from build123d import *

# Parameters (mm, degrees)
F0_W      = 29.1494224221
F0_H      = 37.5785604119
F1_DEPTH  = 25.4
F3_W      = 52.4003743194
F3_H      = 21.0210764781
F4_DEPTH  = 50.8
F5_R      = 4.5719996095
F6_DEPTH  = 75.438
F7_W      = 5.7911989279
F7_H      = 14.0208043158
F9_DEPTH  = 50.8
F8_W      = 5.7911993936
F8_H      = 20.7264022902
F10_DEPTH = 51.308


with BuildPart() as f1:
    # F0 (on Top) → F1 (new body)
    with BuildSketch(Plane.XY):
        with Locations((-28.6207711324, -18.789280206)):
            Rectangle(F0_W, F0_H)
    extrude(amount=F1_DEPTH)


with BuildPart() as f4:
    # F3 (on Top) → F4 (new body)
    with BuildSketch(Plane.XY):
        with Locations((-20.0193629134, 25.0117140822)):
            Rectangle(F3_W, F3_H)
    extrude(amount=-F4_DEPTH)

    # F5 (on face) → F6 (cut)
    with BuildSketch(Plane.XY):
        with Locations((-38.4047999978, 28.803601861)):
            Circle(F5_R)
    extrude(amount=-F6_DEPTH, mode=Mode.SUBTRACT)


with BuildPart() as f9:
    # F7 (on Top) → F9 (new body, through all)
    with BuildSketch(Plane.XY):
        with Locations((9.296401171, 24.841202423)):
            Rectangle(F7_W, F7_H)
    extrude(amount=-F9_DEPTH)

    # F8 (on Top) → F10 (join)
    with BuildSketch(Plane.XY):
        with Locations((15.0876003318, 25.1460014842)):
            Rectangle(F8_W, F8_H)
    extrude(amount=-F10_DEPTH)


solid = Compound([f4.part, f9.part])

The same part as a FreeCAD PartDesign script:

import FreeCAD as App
import Part
import Sketcher

V = App.Vector
Q = App.Units.Quantity


def add_polygon(sketch, points):
    """Adds a closed chain of lines whose ends are joined by coincident constraints."""
    first, n = sketch.GeometryCount, len(points)
    for a, b in zip(points, points[1:] + points[:1]):
        sketch.addGeometry(Part.LineSegment(App.Vector(*a, 0), App.Vector(*b, 0)), False)
    for i in range(n):
        sketch.addConstraint(Sketcher.Constraint("Coincident", first + i, 2, first + (i + 1) % n, 1))

doc = App.newDocument("Part")
params = doc.addObject("Spreadsheet::Sheet", "Params")
for row, (alias, value) in enumerate([
    ("pad1_length", "1 in"),
    ("pad2_length", "2 in"),
    ("sketch3_diameter", "0.36 in"),
    ("pocket1_length", "2.97 in"),
    ("sketch4_width", "0.228 in"),
    ("sketch4_height", "0.5520002 in"),
    ("pad3_length", "2 in"),
    ("sketch5_width", "0.228 in"),
    ("sketch5_height", "0.8160001 in"),
    ("pad4_length", "2.02 in"),
], start=1):
    params.set(f"A{row}", alias)
    params.set(f"B{row}", "=" + value)
    params.setAlias(f"B{row}", alias)

body = doc.addObject("PartDesign::Body", "Body")

# Sketch on XY plane
sketch1 = body.newObject("Sketcher::SketchObject", "Sketch")
sketch1.AttachmentSupport = (doc.getObject("XY_Plane"), [""])
sketch1.MapMode = "FlatFace"
add_polygon(sketch1, [(-43, 0), (-43, -38), (-14, -38), (-14, 0)])  # lines 0-3
sketch1.addConstraint(Sketcher.Constraint("Vertical", 0))
sketch1.addConstraint(Sketcher.Constraint("Horizontal", 1))
sketch1.addConstraint(Sketcher.Constraint("Vertical", 2))
sketch1.addConstraint(Sketcher.Constraint("Horizontal", 3))
sketch1.addConstraint(Sketcher.Constraint("PointOnObject", 2, 2, -1))
sketch1.addConstraint(Sketcher.Constraint("DistanceY", 0, 2, 0, 1, 37.57856))
sketch1.addConstraint(Sketcher.Constraint("DistanceX", 1, 1, 1, 2, 29.149422))
sketch1.addConstraint(Sketcher.Constraint("DistanceX", 1, 2, -1, 1, 14.04606))
pad1 = body.newObject("PartDesign::Pad", "Pad")
pad1.Profile = sketch1
pad1.setExpression("Length", "Params.pad1_length")
body2 = doc.addObject("PartDesign::Body", "Body001")

# Sketch on XY plane
sketch2 = body2.newObject("Sketcher::SketchObject", "Sketch001")
sketch2.AttachmentSupport = (doc.getObject("XY_Plane001"), [""])
sketch2.MapMode = "FlatFace"
add_polygon(sketch2, [(-46, 36), (-46, 15), (6, 15), (6, 36)])  # lines 0-3
sketch2.addConstraint(Sketcher.Constraint("Vertical", 0))
sketch2.addConstraint(Sketcher.Constraint("Horizontal", 1))
sketch2.addConstraint(Sketcher.Constraint("Vertical", 2))
sketch2.addConstraint(Sketcher.Constraint("Horizontal", 3))
sketch2.addConstraint(Sketcher.Constraint("DistanceX", 1, 1, 1, 2, 52.400374))
sketch2.addConstraint(Sketcher.Constraint("DistanceY", 0, 2, 0, 1, 21.021076))
sketch2.addConstraint(Sketcher.Constraint("DistanceX", 0, 2, -1, 1, 46.21955))
sketch2.addConstraint(Sketcher.Constraint("DistanceY", -1, 1, 0, 2, 14.501176))
pad2 = body2.newObject("PartDesign::Pad", "Pad001")
pad2.Profile = sketch2
pad2.setExpression("Length", "Params.pad2_length")
pad2.Reversed = True

# Sketch on XY plane
sketch3 = body2.newObject("Sketcher::SketchObject", "Sketch002")
sketch3.AttachmentSupport = (doc.getObject("XY_Plane001"), [""])
sketch3.MapMode = "FlatFace"
sketch3.addGeometry(Part.Circle(V(-38.4, 28.8, 0), V(0, 0, 1), 4.6), False)
sketch3.addConstraint(Sketcher.Constraint("Diameter", 0, Q("0.36 in")))
sketch3.addConstraint(Sketcher.Constraint("DistanceX", 0, 3, -1, 1, Q("1.512 in")))
sketch3.addConstraint(Sketcher.Constraint("DistanceY", -1, 1, 0, 3, Q("1.1340001 in")))
sketch3.setExpression("Constraints[0]", "Params.sketch3_diameter")
pocket1 = body2.newObject("PartDesign::Pocket", "Pocket")
pocket1.Profile = sketch3
pocket1.setExpression("Length", "Params.pocket1_length")
body3 = doc.addObject("PartDesign::Body", "Body002")

# Sketch on XY plane
sketch4 = body3.newObject("Sketcher::SketchObject", "Sketch003")
sketch4.AttachmentSupport = (doc.getObject("XY_Plane002"), [""])
sketch4.MapMode = "FlatFace"
add_polygon(sketch4, [(6, 32), (6, 18), (12, 18), (12, 32)])  # lines 0-3
sketch4.addConstraint(Sketcher.Constraint("Vertical", 0))
sketch4.addConstraint(Sketcher.Constraint("Horizontal", 1))
sketch4.addConstraint(Sketcher.Constraint("Vertical", 2))
sketch4.addConstraint(Sketcher.Constraint("Horizontal", 3))
sketch4.addConstraint(Sketcher.Constraint("DistanceX", 1, 1, 1, 2, Q("0.228 in")))
sketch4.addConstraint(Sketcher.Constraint("DistanceY", 0, 2, 0, 1, Q("0.5520002 in")))
sketch4.addConstraint(Sketcher.Constraint("DistanceX", -1, 1, 1, 2, Q("0.48 in")))
sketch4.addConstraint(Sketcher.Constraint("DistanceY", -1, 1, 0, 2, Q("0.702 in")))
sketch4.setExpression("Constraints[8]", "Params.sketch4_width")
sketch4.setExpression("Constraints[9]", "Params.sketch4_height")
pad3 = body3.newObject("PartDesign::Pad", "Pad002")
pad3.Profile = sketch4
pad3.setExpression("Length", "Params.pad3_length")
pad3.Reversed = True

# Sketch on XY plane
sketch5 = body3.newObject("Sketcher::SketchObject", "Sketch004")
sketch5.AttachmentSupport = (doc.getObject("XY_Plane002"), [""])
sketch5.MapMode = "FlatFace"
add_polygon(sketch5, [(12, 36), (12, 15), (18, 15), (18, 36)])  # lines 0-3
sketch5.addConstraint(Sketcher.Constraint("Vertical", 0))
sketch5.addConstraint(Sketcher.Constraint("Horizontal", 1))
sketch5.addConstraint(Sketcher.Constraint("Vertical", 2))
sketch5.addConstraint(Sketcher.Constraint("Horizontal", 3))
sketch5.addConstraint(Sketcher.Constraint("DistanceX", 1, 1, 1, 2, Q("0.228 in")))
sketch5.addConstraint(Sketcher.Constraint("DistanceY", 0, 2, 0, 1, Q("0.8160001 in")))
sketch5.addConstraint(Sketcher.Constraint("DistanceX", -1, 1, 0, 2, Q("0.48 in")))
sketch5.addConstraint(Sketcher.Constraint("DistanceY", -1, 1, 0, 2, Q("0.582 in")))
sketch5.setExpression("Constraints[8]", "Params.sketch5_width")
sketch5.setExpression("Constraints[9]", "Params.sketch5_height")
pad4 = body3.newObject("PartDesign::Pad", "Pad003")
pad4.Profile = sketch5
pad4.setExpression("Length", "Params.pad4_length")
pad4.Reversed = True
body.Visibility = False

doc.recompute()
